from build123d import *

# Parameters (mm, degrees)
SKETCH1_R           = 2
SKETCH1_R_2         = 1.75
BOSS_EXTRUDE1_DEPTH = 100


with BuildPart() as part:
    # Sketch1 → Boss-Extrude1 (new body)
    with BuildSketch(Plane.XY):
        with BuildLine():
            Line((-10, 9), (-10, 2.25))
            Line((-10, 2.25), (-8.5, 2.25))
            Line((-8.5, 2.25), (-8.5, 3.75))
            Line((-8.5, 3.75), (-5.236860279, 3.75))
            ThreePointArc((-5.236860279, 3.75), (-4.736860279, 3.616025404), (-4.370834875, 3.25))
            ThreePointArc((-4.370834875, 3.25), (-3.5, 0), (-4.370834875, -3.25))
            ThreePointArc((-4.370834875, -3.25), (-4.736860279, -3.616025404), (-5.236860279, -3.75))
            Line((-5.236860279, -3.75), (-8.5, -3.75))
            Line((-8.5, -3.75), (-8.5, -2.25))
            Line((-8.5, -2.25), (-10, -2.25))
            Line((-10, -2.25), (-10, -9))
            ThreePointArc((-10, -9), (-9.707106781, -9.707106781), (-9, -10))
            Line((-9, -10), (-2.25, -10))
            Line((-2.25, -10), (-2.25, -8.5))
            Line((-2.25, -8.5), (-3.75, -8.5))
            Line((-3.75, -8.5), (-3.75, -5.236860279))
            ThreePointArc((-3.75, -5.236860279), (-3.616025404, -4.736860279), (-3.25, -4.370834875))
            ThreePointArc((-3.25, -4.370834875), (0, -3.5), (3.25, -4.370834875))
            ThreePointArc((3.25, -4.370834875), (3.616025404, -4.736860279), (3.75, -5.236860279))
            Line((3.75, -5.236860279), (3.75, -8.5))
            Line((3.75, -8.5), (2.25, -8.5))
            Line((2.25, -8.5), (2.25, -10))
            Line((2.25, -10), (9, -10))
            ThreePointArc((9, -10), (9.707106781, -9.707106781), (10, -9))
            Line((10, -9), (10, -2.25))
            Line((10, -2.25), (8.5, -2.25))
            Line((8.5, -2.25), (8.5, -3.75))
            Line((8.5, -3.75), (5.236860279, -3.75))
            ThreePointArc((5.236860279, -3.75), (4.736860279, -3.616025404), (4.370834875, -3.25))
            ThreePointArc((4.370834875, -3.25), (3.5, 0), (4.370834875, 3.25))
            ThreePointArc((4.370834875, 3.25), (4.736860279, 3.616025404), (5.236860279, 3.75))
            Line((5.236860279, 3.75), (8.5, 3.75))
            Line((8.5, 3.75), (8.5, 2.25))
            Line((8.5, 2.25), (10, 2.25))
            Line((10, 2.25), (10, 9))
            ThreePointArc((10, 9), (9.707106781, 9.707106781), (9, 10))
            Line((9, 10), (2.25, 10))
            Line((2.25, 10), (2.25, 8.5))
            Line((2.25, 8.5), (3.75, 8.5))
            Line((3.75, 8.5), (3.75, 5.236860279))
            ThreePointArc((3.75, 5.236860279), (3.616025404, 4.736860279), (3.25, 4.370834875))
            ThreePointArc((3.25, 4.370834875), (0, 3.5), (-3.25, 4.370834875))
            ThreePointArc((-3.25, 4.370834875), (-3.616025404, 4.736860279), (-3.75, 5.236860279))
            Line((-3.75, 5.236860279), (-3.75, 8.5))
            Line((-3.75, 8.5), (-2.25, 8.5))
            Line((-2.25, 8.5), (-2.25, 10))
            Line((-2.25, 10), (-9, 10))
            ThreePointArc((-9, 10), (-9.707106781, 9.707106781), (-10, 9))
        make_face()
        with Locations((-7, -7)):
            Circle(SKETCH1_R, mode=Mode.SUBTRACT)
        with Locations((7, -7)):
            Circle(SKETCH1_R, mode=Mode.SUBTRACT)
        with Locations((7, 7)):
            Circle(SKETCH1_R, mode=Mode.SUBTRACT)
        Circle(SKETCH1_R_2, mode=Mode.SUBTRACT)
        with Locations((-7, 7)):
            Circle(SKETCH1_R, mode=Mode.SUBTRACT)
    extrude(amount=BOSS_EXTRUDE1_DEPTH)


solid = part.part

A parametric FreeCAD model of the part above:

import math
import FreeCAD as App
import Part
import Sketcher

V = App.Vector

doc = App.newDocument("Part")
body = doc.addObject("PartDesign::Body", "Body")

# Sketch on XY plane
sketch1 = body.newObject("Sketcher::SketchObject", "Sketch")
sketch1.AttachmentSupport = (doc.getObject("XY_Plane"), [""])
sketch1.MapMode = "FlatFace"
sketch1.addGeometry(Part.LineSegment(V(-10, 9, 0), V(-10, 2.2, 0)), False)
sketch1.addGeometry(Part.LineSegment(V(-10, 2.2, 0), V(-8.5, 2.2, 0)), False)
sketch1.addGeometry(Part.LineSegment(V(-8.5, 2.2, 0), V(-8.5, 3.8, 0)), False)
sketch1.addGeometry(Part.LineSegment(V(-8.5, 3.8, 0), V(-5.2, 3.8, 0)), False)
sketch1.addGeometry(Part.ArcOfCircle(Part.Circle(V(-5.2, 2.8, 0), V(0, 0, 1), 1), math.radians(30), math.radians(90)), False)
sketch1.addGeometry(Part.ArcOfCircle(Part.Circle(V(-10, 0, 0), V(0, 0, 1), 6.5), math.radians(-30), math.radians(30)), False)
sketch1.addGeometry(Part.ArcOfCircle(Part.Circle(V(-5.2, -2.8, 0), V(0, 0, 1), 1), math.radians(-90), math.radians(-30)), False)
sketch1.addGeometry(Part.LineSegment(V(-5.2, -3.8, 0), V(-8.5, -3.8, 0)), False)
sketch1.addGeometry(Part.LineSegment(V(-8.5, -3.8, 0), V(-8.5, -2.2, 0)), False)
sketch1.addGeometry(Part.LineSegment(V(-8.5, -2.2, 0), V(-10, -2.2, 0)), False)
sketch1.addGeometry(Part.LineSegment(V(-10, -2.2, 0), V(-10, -9, 0)), False)
sketch1.addGeometry(Part.ArcOfCircle(Part.Circle(V(-9, -9, 0), V(0, 0, 1), 1), math.radians(-180), math.radians(-90)), False)
sketch1.addGeometry(Part.LineSegment(V(-9, -10, 0), V(-2.2, -10, 0)), False)
sketch1.addGeometry(Part.LineSegment(V(-2.2, -10, 0), V(-2.2, -8.5, 0)), False)
sketch1.addGeometry(Part.LineSegment(V(-2.2, -8.5, 0), V(-3.8, -8.5, 0)), False)
sketch1.addGeometry(Part.LineSegment(V(-3.8, -8.5, 0), V(-3.8, -5.2, 0)), False)
sketch1.addGeometry(Part.ArcOfCircle(Part.Circle(V(-2.8, -5.2, 0), V(0, 0, 1), 1), math.radians(120), math.radians(180)), False)
sketch1.addGeometry(Part.ArcOfCircle(Part.Circle(V(0, -10, 0), V(0, 0, 1), 6.5), math.radians(60), math.radians(120)), False)
sketch1.addGeometry(Part.ArcOfCircle(Part.Circle(V(2.8, -5.2, 0), V(0, 0, 1), 1), math.radians(0), math.radians(60)), False)
sketch1.addGeometry(Part.LineSegment(V(3.8, -5.2, 0), V(3.8, -8.5, 0)), False)
sketch1.addGeometry(Part.LineSegment(V(3.8, -8.5, 0), V(2.2, -8.5, 0)), False)
sketch1.addGeometry(Part.LineSegment(V(2.2, -8.5, 0), V(2.2, -10, 0)), False)
sketch1.addGeometry(Part.LineSegment(V(2.2, -10, 0), V(9, -10, 0)), False)
sketch1.addGeometry(Part.ArcOfCircle(Part.Circle(V(9, -9, 0), V(0, 0, 1), 1), math.radians(-90), math.radians(0)), False)
sketch1.addGeometry(Part.LineSegment(V(10, -9, 0), V(10, -2.2, 0)), False)
sketch1.addGeometry(Part.LineSegment(V(10, -2.2, 0), V(8.5, -2.2, 0)), False)
sketch1.addGeometry(Part.LineSegment(V(8.5, -2.2, 0), V(8.5, -3.8, 0)), False)
sketch1.addGeometry(Part.LineSegment(V(8.5, -3.8, 0), V(5.2, -3.8, 0)), False)
sketch1.addGeometry(Part.ArcOfCircle(Part.Circle(V(5.2, -2.8, 0), V(0, 0, 1), 1), math.radians(-150), math.radians(-90)), False)
sketch1.addGeometry(Part.ArcOfCircle(Part.Circle(V(10, 0, 0), V(0, 0, 1), 6.5), math.radians(150), math.radians(210)), False)
sketch1.addGeometry(Part.ArcOfCircle(Part.Circle(V(5.2, 2.8, 0), V(0, 0, 1), 1), math.radians(90), math.radians(150)), False)
sketch1.addGeometry(Part.LineSegment(V(5.2, 3.8, 0), V(8.5, 3.8, 0)), False)
sketch1.addGeometry(Part.LineSegment(V(8.5, 3.8, 0), V(8.5, 2.2, 0)), False)
sketch1.addGeometry(Part.LineSegment(V(8.5, 2.2, 0), V(10, 2.2, 0)), False)
sketch1.addGeometry(Part.LineSegment(V(10, 2.2, 0), V(10, 9, 0)), False)
sketch1.addGeometry(Part.ArcOfCircle(Part.Circle(V(9, 9, 0), V(0, 0, 1), 1), math.radians(0), math.radians(90)), False)
sketch1.addGeometry(Part.LineSegment(V(9, 10, 0), V(2.2, 10, 0)), False)
sketch1.addGeometry(Part.LineSegment(V(2.2, 10, 0), V(2.2, 8.5, 0)), False)
sketch1.addGeometry(Part.LineSegment(V(2.2, 8.5, 0), V(3.8, 8.5, 0)), False)
sketch1.addGeometry(Part.LineSegment(V(3.8, 8.5, 0), V(3.8, 5.2, 0)), False)
sketch1.addGeometry(Part.ArcOfCircle(Part.Circle(V(2.8, 5.2, 0), V(0, 0, 1), 1), math.radians(-60), math.radians(0)), False)
sketch1.addGeometry(Part.ArcOfCircle(Part.Circle(V(0, 10, 0), V(0, 0, 1), 6.5), math.radians(-120), math.radians(-60)), False)
sketch1.addGeometry(Part.ArcOfCircle(Part.Circle(V(-2.8, 5.2, 0), V(0, 0, 1), 1), math.radians(180), math.radians(240)), False)
sketch1.addGeometry(Part.LineSegment(V(-3.8, 5.2, 0), V(-3.8, 8.5, 0)), False)
sketch1.addGeometry(Part.LineSegment(V(-3.8, 8.5, 0), V(-2.2, 8.5, 0)), False)
sketch1.addGeometry(Part.LineSegment(V(-2.2, 8.5, 0), V(-2.2, 10, 0)), False)
sketch1.addGeometry(Part.LineSegment(V(-2.2, 10, 0), V(-9, 10, 0)), False)
sketch1.addGeometry(Part.ArcOfCircle(Part.Circle(V(-9, 9, 0), V(0, 0, 1), 1), math.radians(90), math.radians(180)), False)
sketch1.addGeometry(Part.Circle(V(-7, -7, 0), V(0, 0, 1), 2), False)
sketch1.addGeometry(Part.Circle(V(7, -7, 0), V(0, 0, 1), 2), False)
sketch1.addGeometry(Part.Circle(V(-7, 7, 0), V(0, 0, 1), 2), False)
sketch1.addGeometry(Part.Circle(V(0, 0, 0), V(0, 0, 1), 1.8), False)
sketch1.addGeometry(Part.Circle(V(7, 7, 0), V(0, 0, 1), 2), False)
sketch1.addConstraint(Sketcher.Constraint("Coincident", 0, 2, 1, 1))
sketch1.addConstraint(Sketcher.Constraint("Coincident", 1, 2, 2, 1))
sketch1.addConstraint(Sketcher.Constraint("Coincident", 2, 2, 3, 1))
sketch1.addConstraint(Sketcher.Constraint("Tangent", 3, 2, 4, 2))
sketch1.addConstraint(Sketcher.Constraint("Tangent", 4, 1, 5, 2))
sketch1.addConstraint(Sketcher.Constraint("Tangent", 5, 1, 6, 2))
sketch1.addConstraint(Sketcher.Constraint("Tangent", 6, 1, 7, 1))
sketch1.addConstraint(Sketcher.Constraint("Coincident", 7, 2, 8, 1))
sketch1.addConstraint(Sketcher.Constraint("Coincident", 8, 2, 9, 1))
sketch1.addConstraint(Sketcher.Constraint("Coincident", 9, 2, 10, 1))
sketch1.addConstraint(Sketcher.Constraint("Tangent", 10, 2, 11, 1))
sketch1.addConstraint(Sketcher.Constraint("Tangent", 11, 2, 12, 1))
sketch1.addConstraint(Sketcher.Constraint("Coincident", 12, 2, 13, 1))
sketch1.addConstraint(Sketcher.Constraint("Coincident", 13, 2, 14, 1))
sketch1.addConstraint(Sketcher.Constraint("Coincident", 14, 2, 15, 1))
sketch1.addConstraint(Sketcher.Constraint("Tangent", 15, 2, 16, 2))
sketch1.addConstraint(Sketcher.Constraint("Tangent", 16, 1, 17, 2))
sketch1.addConstraint(Sketcher.Constraint("Tangent", 17, 1, 18, 2))
sketch1.addConstraint(Sketcher.Constraint("Tangent", 18, 1, 19, 1))
sketch1.addConstraint(Sketcher.Constraint("Coincident", 19, 2, 20, 1))
sketch1.addConstraint(Sketcher.Constraint("Coincident", 20, 2, 21, 1))
sketch1.addConstraint(Sketcher.Constraint("Coincident", 21, 2, 22, 1))
sketch1.addConstraint(Sketcher.Constraint("Tangent", 22, 2, 23, 1))
sketch1.addConstraint(Sketcher.Constraint("Tangent", 23, 2, 24, 1))
sketch1.addConstraint(Sketcher.Constraint("Coincident", 24, 2, 25, 1))
sketch1.addConstraint(Sketcher.Constraint("Coincident", 25, 2, 26, 1))
sketch1.addConstraint(Sketcher.Constraint("Coincident", 26, 2, 27, 1))
sketch1.addConstraint(Sketcher.Constraint("Tangent", 27, 2, 28, 2))
sketch1.addConstraint(Sketcher.Constraint("Tangent", 28, 1, 29, 2))
sketch1.addConstraint(Sketcher.Constraint("Tangent", 29, 1, 30, 2))
sketch1.addConstraint(Sketcher.Constraint("Tangent", 30, 1, 31, 1))
sketch1.addConstraint(Sketcher.Constraint("Coincident", 31, 2, 32, 1))
sketch1.addConstraint(Sketcher.Constraint("Coincident", 32, 2, 33, 1))
sketch1.addConstraint(Sketcher.Constraint("Coincident", 33, 2, 34, 1))
sketch1.addConstraint(Sketcher.Constraint("Tangent", 34, 2, 35, 1))
sketch1.addConstraint(Sketcher.Constraint("Tangent", 35, 2, 36, 1))
sketch1.addConstraint(Sketcher.Constraint("Coincident", 36, 2, 37, 1))
sketch1.addConstraint(Sketcher.Constraint("Coincident", 37, 2, 38, 1))
sketch1.addConstraint(Sketcher.Constraint("Coincident", 38, 2, 39, 1))
sketch1.addConstraint(Sketcher.Constraint("Tangent", 39, 2, 40, 2))
sketch1.addConstraint(Sketcher.Constraint("Tangent", 40, 1, 41, 2))
sketch1.addConstraint(Sketcher.Constraint("Tangent", 41, 1, 42, 2))
sketch1.addConstraint(Sketcher.Constraint("Tangent", 42, 1, 43, 1))
sketch1.addConstraint(Sketcher.Constraint("Coincident", 43, 2, 44, 1))
sketch1.addConstraint(Sketcher.Constraint("Coincident", 44, 2, 45, 1))
sketch1.addConstraint(Sketcher.Constraint("Coincident", 45, 2, 46, 1))
sketch1.addConstraint(Sketcher.Constraint("Tangent", 46, 2, 47, 1))
sketch1.addConstraint(Sketcher.Constraint("Tangent", 47, 2, 0, 1))
sketch1.addConstraint(Sketcher.Constraint("Vertical", 0))
sketch1.addConstraint(Sketcher.Constraint("Horizontal", 1))
sketch1.addConstraint(Sketcher.Constraint("Vertical", 2))
sketch1.addConstraint(Sketcher.Constraint("Horizontal", 3))
sketch1.addConstraint(Sketcher.Constraint("Horizontal", 7))
sketch1.addConstraint(Sketcher.Constraint("Vertical", 8))
sketch1.addConstraint(Sketcher.Constraint("Horizontal", 9))
sketch1.addConstraint(Sketcher.Constraint("Vertical", 10))
sketch1.addConstraint(Sketcher.Constraint("Horizontal", 12))
sketch1.addConstraint(Sketcher.Constraint("Vertical", 13))
sketch1.addConstraint(Sketcher.Constraint("Horizontal", 14))
sketch1.addConstraint(Sketcher.Constraint("Vertical", 15))
sketch1.addConstraint(Sketcher.Constraint("Vertical", 19))
sketch1.addConstraint(Sketcher.Constraint("Horizontal", 20))
sketch1.addConstraint(Sketcher.Constraint("Vertical", 21))
sketch1.addConstraint(Sketcher.Constraint("Horizontal", 22))
sketch1.addConstraint(Sketcher.Constraint("Vertical", 24))
sketch1.addConstraint(Sketcher.Constraint("Horizontal", 25))
sketch1.addConstraint(Sketcher.Constraint("Vertical", 26))
sketch1.addConstraint(Sketcher.Constraint("Horizontal", 27))
sketch1.addConstraint(Sketcher.Constraint("Horizontal", 31))
sketch1.addConstraint(Sketcher.Constraint("Vertical", 32))
sketch1.addConstraint(Sketcher.Constraint("Horizontal", 33))
sketch1.addConstraint(Sketcher.Constraint("Vertical", 34))
sketch1.addConstraint(Sketcher.Constraint("Horizontal", 36))
sketch1.addConstraint(Sketcher.Constraint("Vertical", 37))
sketch1.addConstraint(Sketcher.Constraint("Horizontal", 38))
sketch1.addConstraint(Sketcher.Constraint("Vertical", 39))
sketch1.addConstraint(Sketcher.Constraint("Vertical", 43))
sketch1.addConstraint(Sketcher.Constraint("Horizontal", 44))
sketch1.addConstraint(Sketcher.Constraint("Vertical", 45))
sketch1.addConstraint(Sketcher.Constraint("Horizontal", 46))
sketch1.addConstraint(Sketcher.Constraint("Coincident", 51, 3, -1, 1))
sketch1.addConstraint(Sketcher.Constraint("Equal", 4, 6))
sketch1.addConstraint(Sketcher.Constraint("Equal", 6, 11))
sketch1.addConstraint(Sketcher.Constraint("Equal", 11, 16))
sketch1.addConstraint(Sketcher.Constraint("Equal", 5, 17))
sketch1.addConstraint(Sketcher.Constraint("Equal", 16, 18))
sketch1.addConstraint(Sketcher.Constraint("Equal", 18, 23))
sketch1.addConstraint(Sketcher.Constraint("Equal", 23, 28))
sketch1.addConstraint(Sketcher.Constraint("Equal", 17, 29))
sketch1.addConstraint(Sketcher.Constraint("Equal", 28, 30))
sketch1.addConstraint(Sketcher.Constraint("Equal", 30, 35))
sketch1.addConstraint(Sketcher.Constraint("Equal", 35, 40))
sketch1.addConstraint(Sketcher.Constraint("Equal", 29, 41))
sketch1.addConstraint(Sketcher.Constraint("Equal", 40, 42))
sketch1.addConstraint(Sketcher.Constraint("Equal", 42, 47))
sketch1.addConstraint(Sketcher.Constraint("Equal", 48, 49))
sketch1.addConstraint(Sketcher.Constraint("Equal", 49, 50))
sketch1.addConstraint(Sketcher.Constraint("Equal", 50, 52))
sketch1.addConstraint(Sketcher.Constraint("Symmetric", 4, 3, 28, 3, -1, 1))
sketch1.addConstraint(Sketcher.Constraint("Symmetric", 6, 3, 30, 3, -1, 1))
sketch1.addConstraint(Sketcher.Constraint("Symmetric", 11, 3, 35, 3, -1, 1))
sketch1.addConstraint(Sketcher.Constraint("Symmetric", 16, 3, 40, 3, -1, 1))
sketch1.addConstraint(Sketcher.Constraint("Symmetric", 18, 3, 42, 3, -1, 1))
sketch1.addConstraint(Sketcher.Constraint("Symmetric", 23, 3, 47, 3, -1, 1))
sketch1.addConstraint(Sketcher.Constraint("Symmetric", 49, 3, 50, 3, -1, 1))
sketch1.addConstraint(Sketcher.Constraint("Symmetric", 48, 3, 52, 3, -1, 1))
sketch1.addConstraint(Sketcher.Constraint("Symmetric", 1, 2, 25, 2, -1, 1))
sketch1.addConstraint(Sketcher.Constraint("Symmetric", 8, 2, 32, 2, -1, 1))
sketch1.addConstraint(Sketcher.Constraint("Symmetric", 13, 2, 37, 2, -1, 1))
sketch1.addConstraint(Sketcher.Constraint("Symmetric", 20, 2, 44, 2, -1, 1))
sketch1.addConstraint(Sketcher.Constraint("Symmetric", 16, 3, 18, 3, -2))
sketch1.addConstraint(Sketcher.Constraint("Symmetric", 11, 3, 23, 3, -2))
sketch1.addConstraint(Sketcher.Constraint("Symmetric", 6, 3, 28, 3, -2))
sketch1.addConstraint(Sketcher.Constraint("Symmetric", 48, 3, 49, 3, -2))
sketch1.addConstraint(Sketcher.Constraint("Symmetric", 13, 2, 20, 2, -2))
sketch1.addConstraint(Sketcher.Constraint("Symmetric", 8, 2, 25, 2, -2))
sketch1.addConstraint(Sketcher.Constraint("Horizontal", 17, 3, 11, 2))
sketch1.addConstraint(Sketcher.Constraint("Vertical", 5, 3, 0, 2))
sketch1.addConstraint(Sketcher.Constraint("Equal", 9, 14))
sketch1.addConstraint(Sketcher.Constraint("Equal", 46, 0))
sketch1.addConstraint(Sketcher.Constraint("Equal", 44, 2))
sketch1.addConstraint(Sketcher.Constraint("Equal", 8, 13))
sketch1.addConstraint(Sketcher.Constraint("Equal", 31, 15))
sketch1.addConstraint(Sketcher.Constraint("Diameter", 48, 4.0))
sketch1.addConstraint(Sketcher.Constraint("Radius", 4, 1.0))
sketch1.addConstraint(Sketcher.Constraint("Diameter", 51, 3.5))
sketch1.addConstraint(Sketcher.Constraint("Radius", 5, 6.5))
sketch1.addConstraint(Sketcher.Constraint("DistanceX", 1, 1, 1, 2, 1.5))
sketch1.addConstraint(Sketcher.Constraint("DistanceX", 5, 3, -1, 1, 10.0))
sketch1.addConstraint(Sketcher.Constraint("DistanceX", 48, 3, -1, 1, 7.0))
sketch1.addConstraint(Sketcher.Constraint("DistanceY", 48, 3, -1, 1, 7.0))
sketch1.addConstraint(Sketcher.Constraint("DistanceX", 12, 1, 12, 2, 6.75))
pad1 = body.newObject("PartDesign::Pad", "Pad")
pad1.Profile = sketch1
pad1.Length = 100

doc.recompute()
